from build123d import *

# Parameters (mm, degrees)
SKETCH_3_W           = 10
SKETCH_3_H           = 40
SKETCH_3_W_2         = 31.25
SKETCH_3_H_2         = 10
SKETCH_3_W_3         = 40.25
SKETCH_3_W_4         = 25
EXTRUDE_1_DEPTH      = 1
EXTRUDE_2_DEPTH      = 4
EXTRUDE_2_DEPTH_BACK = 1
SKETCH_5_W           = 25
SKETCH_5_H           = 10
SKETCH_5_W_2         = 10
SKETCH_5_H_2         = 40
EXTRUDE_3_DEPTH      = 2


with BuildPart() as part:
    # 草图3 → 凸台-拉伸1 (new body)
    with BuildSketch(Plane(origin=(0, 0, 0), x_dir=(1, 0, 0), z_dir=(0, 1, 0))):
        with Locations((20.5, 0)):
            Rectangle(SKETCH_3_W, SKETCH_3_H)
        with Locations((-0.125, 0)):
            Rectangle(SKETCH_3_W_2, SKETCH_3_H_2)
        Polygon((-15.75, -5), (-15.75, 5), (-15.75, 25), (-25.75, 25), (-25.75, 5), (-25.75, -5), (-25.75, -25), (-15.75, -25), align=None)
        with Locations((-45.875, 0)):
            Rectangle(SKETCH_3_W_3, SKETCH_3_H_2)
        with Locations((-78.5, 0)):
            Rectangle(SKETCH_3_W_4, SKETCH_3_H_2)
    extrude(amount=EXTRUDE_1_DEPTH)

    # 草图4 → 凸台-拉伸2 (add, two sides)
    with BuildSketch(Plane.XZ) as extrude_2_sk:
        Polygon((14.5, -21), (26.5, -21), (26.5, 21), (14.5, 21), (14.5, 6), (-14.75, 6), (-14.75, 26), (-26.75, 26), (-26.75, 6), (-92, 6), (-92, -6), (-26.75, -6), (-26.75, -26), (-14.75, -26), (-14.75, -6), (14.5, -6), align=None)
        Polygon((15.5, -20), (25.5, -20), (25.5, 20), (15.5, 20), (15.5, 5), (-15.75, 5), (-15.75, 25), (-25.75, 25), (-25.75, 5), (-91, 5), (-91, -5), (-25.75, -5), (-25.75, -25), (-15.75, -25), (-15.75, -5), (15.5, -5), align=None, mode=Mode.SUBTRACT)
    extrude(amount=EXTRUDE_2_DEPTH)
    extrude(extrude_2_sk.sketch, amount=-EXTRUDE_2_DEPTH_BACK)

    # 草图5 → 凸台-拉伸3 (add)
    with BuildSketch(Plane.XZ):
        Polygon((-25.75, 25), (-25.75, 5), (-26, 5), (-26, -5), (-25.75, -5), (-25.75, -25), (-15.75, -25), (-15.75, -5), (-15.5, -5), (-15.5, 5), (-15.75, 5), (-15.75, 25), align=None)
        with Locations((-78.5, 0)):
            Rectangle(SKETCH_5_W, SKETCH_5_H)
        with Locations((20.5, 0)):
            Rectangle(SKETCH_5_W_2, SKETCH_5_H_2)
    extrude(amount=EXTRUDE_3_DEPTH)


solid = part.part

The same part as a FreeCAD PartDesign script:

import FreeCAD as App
import Part
import Sketcher
from FreeCAD import Vector

doc = App.newDocument("Part")
body = doc.addObject("PartDesign::Body", "Body")

sketch1 = doc.addObject("Sketcher::SketchObject", "Sketch")
body.addObject(sketch1)
sketch1.AttachmentSupport = (doc.XZ_Plane, [""])
sketch1.MapMode = "FlatFace"
sketch1.addGeometry([
    Part.LineSegment(Vector(16, 5, 0), Vector(16, 20, 0)),
    Part.LineSegment(Vector(16, 20, 0), Vector(26, 20, 0)),
    Part.LineSegment(Vector(26, 20, 0), Vector(26, -20, 0)),
    Part.LineSegment(Vector(26, -20, 0), Vector(16, -20, 0)),
    Part.LineSegment(Vector(16, -20, 0), Vector(16, -5, 0)),
    Part.LineSegment(Vector(16, -5, 0), Vector(-16, -5, 0)),
    Part.LineSegment(Vector(-16, -5, 0), Vector(-16, -25, 0)),
    Part.LineSegment(Vector(-16, -25, 0), Vector(-26, -25, 0)),
    Part.LineSegment(Vector(-26, -25, 0), Vector(-26, -5, 0)),
    Part.LineSegment(Vector(-26, -5, 0), Vector(-91, -5, 0)),
    Part.LineSegment(Vector(-91, -5, 0), Vector(-91, 5, 0)),
    Part.LineSegment(Vector(-91, 5, 0), Vector(-26, 5, 0)),
    Part.LineSegment(Vector(-26, 5, 0), Vector(-26, 25, 0)),
    Part.LineSegment(Vector(-26, 25, 0), Vector(-16, 25, 0)),
    Part.LineSegment(Vector(-16, 25, 0), Vector(-16, 5, 0)),
    Part.LineSegment(Vector(-16, 5, 0), Vector(16, 5, 0)),
], False)
sketch1.addConstraint([
    Sketcher.Constraint("Coincident", 0, 2, 1, 1),
    Sketcher.Constraint("Coincident", 1, 2, 2, 1),
    Sketcher.Constraint("Coincident", 2, 2, 3, 1),
    Sketcher.Constraint("Coincident", 3, 2, 4, 1),
    Sketcher.Constraint("Coincident", 4, 2, 5, 1),
    Sketcher.Constraint("Coincident", 5, 2, 6, 1),
    Sketcher.Constraint("Coincident", 6, 2, 7, 1),
    Sketcher.Constraint("Coincident", 7, 2, 8, 1),
    Sketcher.Constraint("Coincident", 8, 2, 9, 1),
    Sketcher.Constraint("Coincident", 9, 2, 10, 1),
    Sketcher.Constraint("Coincident", 10, 2, 11, 1),
    Sketcher.Constraint("Coincident", 11, 2, 12, 1),
    Sketcher.Constraint("Coincident", 12, 2, 13, 1),
    Sketcher.Constraint("Coincident", 13, 2, 14, 1),
    Sketcher.Constraint("Coincident", 14, 2, 15, 1),
    Sketcher.Constraint("Coincident", 15, 2, 0, 1),
    Sketcher.Constraint("Vertical", 0),
    Sketcher.Constraint("Horizontal", 1),
    Sketcher.Constraint("Vertical", 2),
    Sketcher.Constraint("Horizontal", 3),
    Sketcher.Constraint("Vertical", 4),
    Sketcher.Constraint("Horizontal", 5),
    Sketcher.Constraint("Vertical", 6),
    Sketcher.Constraint("Horizontal", 7),
    Sketcher.Constraint("Vertical", 8),
    Sketcher.Constraint("Horizontal", 9),
    Sketcher.Constraint("Vertical", 10),
    Sketcher.Constraint("Horizontal", 11),
    Sketcher.Constraint("Vertical", 12),
    Sketcher.Constraint("Horizontal", 13),
    Sketcher.Constraint("Vertical", 14),
    Sketcher.Constraint("Horizontal", 15),
    Sketcher.Constraint("Symmetric", 0, 2, 3, 2, -1),
    Sketcher.Constraint("Symmetric", 8, 2, 11, 2, -1),
    Sketcher.Constraint("Symmetric", 6, 2, 13, 2, -1),
    Sketcher.Constraint("Horizontal", 5, 2, 8, 2),
    Sketcher.Constraint("Horizontal", 11, 2, 14, 2),
    Sketcher.Constraint("Equal", 3, 7),
    Sketcher.Constraint("Equal", 13, 10),
    Sketcher.Constraint("DistanceX", 1, 1, 1, 2, 10.0),
    Sketcher.Constraint("DistanceY", 0, 1, 0, 2, 15.0),
    Sketcher.Constraint("DistanceY", 6, 2, 6, 1, 20.0),
    Sketcher.Constraint("DistanceX", 9, 2, -1, 1, 91.0),
    Sketcher.Constraint("DistanceX", 5, 2, 5, 1, 31.25),
    Sketcher.Constraint("DistanceX", 9, 2, 9, 1, 65.25),
])
pad1 = doc.addObject("PartDesign::Pad", "Pad")
body.addObject(pad1)
pad1.Profile = sketch1
pad1.Length = 1
pad1.Reversed = True

sketch2 = doc.addObject("Sketcher::SketchObject", "Sketch001")
body.addObject(sketch2)
sketch2.AttachmentSupport = (doc.XZ_Plane, [""])
sketch2.MapMode = "FlatFace"
sketch2.addGeometry([
    Part.LineSegment(Vector(14, -21, 0), Vector(26, -21, 0)),
    Part.LineSegment(Vector(26, -21, 0), Vector(26, 21, 0)),
    Part.LineSegment(Vector(26, 21, 0), Vector(14, 21, 0)),
    Part.LineSegment(Vector(14, 21, 0), Vector(14, 6, 0)),
    Part.LineSegment(Vector(14, 6, 0), Vector(-15, 6, 0)),
    Part.LineSegment(Vector(-15, 6, 0), Vector(-15, 26, 0)),
    Part.LineSegment(Vector(-15, 26, 0), Vector(-27, 26, 0)),
    Part.LineSegment(Vector(-27, 26, 0), Vector(-27, 6, 0)),
    Part.LineSegment(Vector(-27, 6, 0), Vector(-92, 6, 0)),
    Part.LineSegment(Vector(-92, 6, 0), Vector(-92, -6, 0)),
    Part.LineSegment(Vector(-92, -6, 0), Vector(-27, -6, 0)),
    Part.LineSegment(Vector(-27, -6, 0), Vector(-27, -26, 0)),
    Part.LineSegment(Vector(-27, -26, 0), Vector(-15, -26, 0)),
    Part.LineSegment(Vector(-15, -26, 0), Vector(-15, -6, 0)),
    Part.LineSegment(Vector(-15, -6, 0), Vector(14, -6, 0)),
    Part.LineSegment(Vector(14, -6, 0), Vector(14, -21, 0)),
    Part.LineSegment(Vector(26, -20, 0), Vector(16, -20, 0)),
    Part.LineSegment(Vector(16, -20, 0), Vector(16, -5, 0)),
    Part.LineSegment(Vector(16, -5, 0), Vector(-16, -5, 0)),
    Part.LineSegment(Vector(-16, -5, 0), Vector(-16, -25, 0)),
    Part.LineSegment(Vector(-16, -25, 0), Vector(-26, -25, 0)),
    Part.LineSegment(Vector(-26, -25, 0), Vector(-26, -5, 0)),
    Part.LineSegment(Vector(-26, -5, 0), Vector(-91, -5, 0)),
    Part.LineSegment(Vector(-91, -5, 0), Vector(-91, 5, 0)),
    Part.LineSegment(Vector(-91, 5, 0), Vector(-26, 5, 0)),
    Part.LineSegment(Vector(-26, 5, 0), Vector(-26, 25, 0)),
    Part.LineSegment(Vector(-26, 25, 0), Vector(-16, 25, 0)),
    Part.LineSegment(Vector(-16, 25, 0), Vector(-16, 5, 0)),
    Part.LineSegment(Vector(-16, 5, 0), Vector(16, 5, 0)),
    Part.LineSegment(Vector(16, 5, 0), Vector(16, 20, 0)),
    Part.LineSegment(Vector(16, 20, 0), Vector(26, 20, 0)),
    Part.LineSegment(Vector(26, 20, 0), Vector(26, -20, 0)),
], False)
sketch2.addConstraint([
    Sketcher.Constraint("Coincident", 0, 2, 1, 1),
    Sketcher.Constraint("Coincident", 1, 2, 2, 1),
    Sketcher.Constraint("Coincident", 2, 2, 3, 1),
    Sketcher.Constraint("Coincident", 3, 2, 4, 1),
    Sketcher.Constraint("Coincident", 4, 2, 5, 1),
    Sketcher.Constraint("Coincident", 5, 2, 6, 1),
    Sketcher.Constraint("Coincident", 6, 2, 7, 1),
    Sketcher.Constraint("Coincident", 7, 2, 8, 1),
    Sketcher.Constraint("Coincident", 8, 2, 9, 1),
    Sketcher.Constraint("Coincident", 9, 2, 10, 1),
    Sketcher.Constraint("Coincident", 10, 2, 11, 1),
    Sketcher.Constraint("Coincident", 11, 2, 12, 1),
    Sketcher.Constraint("Coincident", 12, 2, 13, 1),
    Sketcher.Constraint("Coincident", 13, 2, 14, 1),
    Sketcher.Constraint("Coincident", 14, 2, 15, 1),
    Sketcher.Constraint("Coincident", 15, 2, 0, 1),
    Sketcher.Constraint("Coincident", 16, 2, 17, 1),
    Sketcher.Constraint("Coincident", 17, 2, 18, 1),
    Sketcher.Constraint("Coincident", 18, 2, 19, 1),
    Sketcher.Constraint("Coincident", 19, 2, 20, 1),
    Sketcher.Constraint("Coincident", 20, 2, 21, 1),
    Sketcher.Constraint("Coincident", 21, 2, 22, 1),
    Sketcher.Constraint("Coincident", 22, 2, 23, 1),
    Sketcher.Constraint("Coincident", 23, 2, 24, 1),
    Sketcher.Constraint("Coincident", 24, 2, 25, 1),
    Sketcher.Constraint("Coincident", 25, 2, 26, 1),
    Sketcher.Constraint("Coincident", 26, 2, 27, 1),
    Sketcher.Constraint("Coincident", 27, 2, 28, 1),
    Sketcher.Constraint("Coincident", 28, 2, 29, 1),
    Sketcher.Constraint("Coincident", 29, 2, 30, 1),
    Sketcher.Constraint("Coincident", 30, 2, 31, 1),
    Sketcher.Constraint("Coincident", 31, 2, 16, 1),
    Sketcher.Constraint("Horizontal", 0),
    Sketcher.Constraint("Vertical", 1),
    Sketcher.Constraint("Horizontal", 2),
    Sketcher.Constraint("Vertical", 3),
    Sketcher.Constraint("Horizontal", 4),
    Sketcher.Constraint("Vertical", 5),
    Sketcher.Constraint("Horizontal", 6),
    Sketcher.Constraint("Vertical", 7),
    Sketcher.Constraint("Horizontal", 8),
    Sketcher.Constraint("Vertical", 9),
    Sketcher.Constraint("Horizontal", 10),
    Sketcher.Constraint("Vertical", 11),
    Sketcher.Constraint("Horizontal", 12),
    Sketcher.Constraint("Vertical", 13),
    Sketcher.Constraint("Horizontal", 14),
    Sketcher.Constraint("Vertical", 15),
    Sketcher.Constraint("Horizontal", 16),
    Sketcher.Constraint("Vertical", 17),
    Sketcher.Constraint("Horizontal", 18),
    Sketcher.Constraint("Vertical", 19),
    Sketcher.Constraint("Horizontal", 20),
    Sketcher.Constraint("Vertical", 21),
    Sketcher.Constraint("Horizontal", 22),
    Sketcher.Constraint("Vertical", 23),
    Sketcher.Constraint("Horizontal", 24),
    Sketcher.Constraint("Vertical", 25),
    Sketcher.Constraint("Horizontal", 26),
    Sketcher.Constraint("Vertical", 27),
    Sketcher.Constraint("Horizontal", 28),
    Sketcher.Constraint("Vertical", 29),
    Sketcher.Constraint("Horizontal", 30),
    Sketcher.Constraint("Vertical", 31),
    Sketcher.Constraint("Symmetric", 7, 2, 10, 2, -1),
    Sketcher.Constraint("Symmetric", 5, 2, 12, 2, -1),
    Sketcher.Constraint("Symmetric", 3, 2, 14, 2, -1),
    Sketcher.Constraint("Symmetric", 21, 2, 24, 2, -1),
    Sketcher.Constraint("Symmetric", 19, 2, 26, 2, -1),
    Sketcher.Constraint("Symmetric", 17, 2, 28, 2, -1),
    Sketcher.Constraint("Horizontal", 4, 2, 7, 2),
    Sketcher.Constraint("Horizontal", 18, 2, 21, 2),
    Sketcher.Constraint("Equal", 2, 6),
    Sketcher.Constraint("Equal", 16, 20),
    Sketcher.Constraint("Equal", 10, 22),
    Sketcher.Constraint("Equal", 12, 9),
    Sketcher.Constraint("Equal", 3, 15),
    Sketcher.Constraint("Equal", 15, 17),
    Sketcher.Constraint("Equal", 13, 19),
    Sketcher.Constraint("Equal", 30, 23),
    Sketcher.Constraint("Equal", 17, 29),
    Sketcher.Constraint("DistanceX", 0, 1, 0, 2, 12.0),
    Sketcher.Constraint("DistanceX", 16, 2, 16, 1, 10.0),
    Sketcher.Constraint("DistanceY", 1, 1, 1, 2, 42.0),
    Sketcher.Constraint("DistanceY", 5, 1, 5, 2, 20.0),
    Sketcher.Constraint("DistanceX", 8, 2, -1, 1, 92.0),
    Sketcher.Constraint("DistanceX", 22, 2, -1, 1, 91.0),
    Sketcher.Constraint("DistanceX", 15, 2, 16, 2, 1.0),
    Sketcher.Constraint("DistanceX", 4, 2, 4, 1, 29.25),
    Sketcher.Constraint("DistanceX", 8, 2, 8, 1, 65.25),
])
pad2 = doc.addObject("PartDesign::Pad", "Pad001")
body.addObject(pad2)
pad2.Profile = sketch2
pad2.Type = "TwoLengths"
pad2.Length = 4
pad2.Length2 = 1

sketch3 = doc.addObject("Sketcher::SketchObject", "Sketch002")
body.addObject(sketch3)
sketch3.AttachmentSupport = (doc.XZ_Plane, [""])
sketch3.MapMode = "FlatFace"
sketch3.addGeometry([
    Part.LineSegment(Vector(-25.75, 25, 0), Vector(-25.75, 5, 0)),
    Part.LineSegment(Vector(-25.75, 5, 0), Vector(-26, 5, 0)),
    Part.LineSegment(Vector(-26, 5, 0), Vector(-26, -5, 0)),
    Part.LineSegment(Vector(-26, -5, 0), Vector(-25.75, -5, 0)),
    Part.LineSegment(Vector(-25.75, -5, 0), Vector(-25.75, -25, 0)),
    Part.LineSegment(Vector(-25.75, -25, 0), Vector(-15.75, -25, 0)),
    Part.LineSegment(Vector(-15.75, -25, 0), Vector(-15.75, -5, 0)),
    Part.LineSegment(Vector(-15.75, -5, 0), Vector(-15.5, -5, 0)),
    Part.LineSegment(Vector(-15.5, -5, 0), Vector(-15.5, 5, 0)),
    Part.LineSegment(Vector(-15.5, 5, 0), Vector(-15.75, 5, 0)),
    Part.LineSegment(Vector(-15.75, 5, 0), Vector(-15.75, 25, 0)),
    Part.LineSegment(Vector(-15.75, 25, 0), Vector(-25.75, 25, 0)),
    Part.LineSegment(Vector(-91, 5, 0), Vector(-91, -5, 0)),
    Part.LineSegment(Vector(-91, -5, 0), Vector(-66, -5, 0)),
    Part.LineSegment(Vector(-66, -5, 0), Vector(-66, 5, 0)),
    Part.LineSegment(Vector(-66, 5, 0), Vector(-91, 5, 0)),
    Part.LineSegment(Vector(15.5, 20, 0), Vector(15.5, -20, 0)),
    Part.LineSegment(Vector(15.5, -20, 0), Vector(25.5, -20, 0)),
    Part.LineSegment(Vector(25.5, -20, 0), Vector(25.5, 20, 0)),
    Part.LineSegment(Vector(25.5, 20, 0), Vector(15.5, 20, 0)),
], False)
sketch3.addConstraint([
    Sketcher.Constraint("Coincident", 0, 2, 1, 1),
    Sketcher.Constraint("Coincident", 1, 2, 2, 1),
    Sketcher.Constraint("Coincident", 2, 2, 3, 1),
    Sketcher.Constraint("Coincident", 3, 2, 4, 1),
    Sketcher.Constraint("Coincident", 4, 2, 5, 1),
    Sketcher.Constraint("Coincident", 5, 2, 6, 1),
    Sketcher.Constraint("Coincident", 6, 2, 7, 1),
    Sketcher.Constraint("Coincident", 7, 2, 8, 1),
    Sketcher.Constraint("Coincident", 8, 2, 9, 1),
    Sketcher.Constraint("Coincident", 9, 2, 10, 1),
    Sketcher.Constraint("Coincident", 10, 2, 11, 1),
    Sketcher.Constraint("Coincident", 11, 2, 0, 1),
    Sketcher.Constraint("Coincident", 12, 2, 13, 1),
    Sketcher.Constraint("Coincident", 13, 2, 14, 1),
    Sketcher.Constraint("Coincident", 14, 2, 15, 1),
    Sketcher.Constraint("Coincident", 15, 2, 12, 1),
    Sketcher.Constraint("Coincident", 16, 2, 17, 1),
    Sketcher.Constraint("Coincident", 17, 2, 18, 1),
    Sketcher.Constraint("Coincident", 18, 2, 19, 1),
    Sketcher.Constraint("Coincident", 19, 2, 16, 1),
    Sketcher.Constraint("Vertical", 0),
    Sketcher.Constraint("Horizontal", 1),
    Sketcher.Constraint("Vertical", 2),
    Sketcher.Constraint("Horizontal", 3),
    Sketcher.Constraint("Vertical", 4),
    Sketcher.Constraint("Horizontal", 5),
    Sketcher.Constraint("Vertical", 6),
    Sketcher.Constraint("Horizontal", 7),
    Sketcher.Constraint("Vertical", 8),
    Sketcher.Constraint("Horizontal", 9),
    Sketcher.Constraint("Vertical", 10),
    Sketcher.Constraint("Horizontal", 11),
    Sketcher.Constraint("Vertical", 12),
    Sketcher.Constraint("Horizontal", 13),
    Sketcher.Constraint("Vertical", 14),
    Sketcher.Constraint("Horizontal", 15),
    Sketcher.Constraint("Vertical", 16),
    Sketcher.Constraint("Horizontal", 17),
    Sketcher.Constraint("Vertical", 18),
    Sketcher.Constraint("Horizontal", 19),
    Sketcher.Constraint("Symmetric", 0, 2, 3, 2, -1),
    Sketcher.Constraint("Symmetric", 6, 2, 9, 2, -1),
    Sketcher.Constraint("Horizontal", 3, 2, 6, 2),
    Sketcher.Constraint("Horizontal", 7, 2, 12, 2),
    Sketcher.Constraint("Horizontal", 9, 2, 14, 2),
    Sketcher.Constraint("Equal", 3, 7),
    Sketcher.Constraint("Equal", 11, 17),
    Sketcher.Constraint("Equal", 19, 2),
    Sketcher.Constraint("Equal", 0, 4),
    Sketcher.Constraint("DistanceX", 5, 1, 5, 2, 10.0),
    Sketcher.Constraint("DistanceX", 13, 1, 13, 2, 25.0),
    Sketcher.Constraint("DistanceY", 0, 2, 0, 1, 20.0),
    Sketcher.Constraint("DistanceY", 16, 2, 16, 1, 40.0),
    Sketcher.Constraint("DistanceX", 1, 2, -1, 1, 26.0),
    Sketcher.Constraint("DistanceX", 12, 2, -1, 1, 91.0),
    Sketcher.Constraint("DistanceY", 16, 2, -1, 1, 20.0),
    Sketcher.Constraint("DistanceX", 7, 2, 16, 2, 31.0),
    Sketcher.Constraint("DistanceX", 1, 2, 1, 1, 0.25),
])
pad3 = doc.addObject("PartDesign::Pad", "Pad002")
body.addObject(pad3)
pad3.Profile = sketch3
pad3.Length = 2

doc.recompute()
